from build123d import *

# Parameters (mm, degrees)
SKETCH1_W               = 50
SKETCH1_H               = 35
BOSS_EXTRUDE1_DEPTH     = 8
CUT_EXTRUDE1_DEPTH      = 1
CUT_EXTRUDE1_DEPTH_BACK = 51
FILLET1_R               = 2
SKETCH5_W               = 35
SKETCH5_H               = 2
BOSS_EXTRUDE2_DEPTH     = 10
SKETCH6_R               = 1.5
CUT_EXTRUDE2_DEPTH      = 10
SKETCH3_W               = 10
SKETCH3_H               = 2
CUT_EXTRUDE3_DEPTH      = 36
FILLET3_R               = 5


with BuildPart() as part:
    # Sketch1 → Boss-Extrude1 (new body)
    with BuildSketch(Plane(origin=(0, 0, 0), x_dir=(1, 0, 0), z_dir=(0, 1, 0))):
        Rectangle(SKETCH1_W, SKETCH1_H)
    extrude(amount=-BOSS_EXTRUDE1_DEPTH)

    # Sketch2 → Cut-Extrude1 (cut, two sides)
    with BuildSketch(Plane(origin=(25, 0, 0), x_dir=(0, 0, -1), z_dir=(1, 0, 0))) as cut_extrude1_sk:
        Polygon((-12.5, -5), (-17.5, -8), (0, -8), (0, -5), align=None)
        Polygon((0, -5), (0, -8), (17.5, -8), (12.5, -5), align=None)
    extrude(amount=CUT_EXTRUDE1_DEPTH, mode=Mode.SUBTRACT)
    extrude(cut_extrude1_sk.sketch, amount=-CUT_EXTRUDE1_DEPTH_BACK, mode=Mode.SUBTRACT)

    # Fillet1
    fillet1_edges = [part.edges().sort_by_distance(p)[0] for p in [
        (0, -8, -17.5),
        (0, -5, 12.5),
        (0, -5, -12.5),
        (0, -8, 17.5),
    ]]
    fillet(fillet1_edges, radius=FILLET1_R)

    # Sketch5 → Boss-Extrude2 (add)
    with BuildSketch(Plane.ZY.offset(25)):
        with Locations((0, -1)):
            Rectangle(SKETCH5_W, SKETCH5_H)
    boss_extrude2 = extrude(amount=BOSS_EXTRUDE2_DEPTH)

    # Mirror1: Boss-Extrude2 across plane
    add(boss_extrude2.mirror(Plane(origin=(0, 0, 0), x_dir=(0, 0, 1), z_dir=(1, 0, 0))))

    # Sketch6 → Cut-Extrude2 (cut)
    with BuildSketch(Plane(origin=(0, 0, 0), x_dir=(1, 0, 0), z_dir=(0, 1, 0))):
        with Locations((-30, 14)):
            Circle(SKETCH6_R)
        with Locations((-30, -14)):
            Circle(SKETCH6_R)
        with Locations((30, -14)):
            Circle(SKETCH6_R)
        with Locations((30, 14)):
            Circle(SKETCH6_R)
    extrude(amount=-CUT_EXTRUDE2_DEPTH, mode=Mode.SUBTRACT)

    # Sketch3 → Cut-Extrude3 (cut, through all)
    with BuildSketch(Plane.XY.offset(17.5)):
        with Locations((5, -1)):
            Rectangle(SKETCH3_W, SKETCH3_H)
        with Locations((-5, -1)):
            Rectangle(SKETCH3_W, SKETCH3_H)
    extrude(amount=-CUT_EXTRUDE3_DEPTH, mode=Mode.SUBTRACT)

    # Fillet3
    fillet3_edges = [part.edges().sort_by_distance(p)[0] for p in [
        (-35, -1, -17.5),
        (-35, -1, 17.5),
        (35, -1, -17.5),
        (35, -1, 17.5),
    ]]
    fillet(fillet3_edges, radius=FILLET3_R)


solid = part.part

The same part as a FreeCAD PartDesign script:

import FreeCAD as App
import Part
import Sketcher

V = App.Vector
Q = App.Units.Quantity


def edges_at(feature, points):
    """Names of the edges that pass closest to the given points."""
    edges = feature.Shape.Edges
    near = lambda p: min(range(len(edges)), key=lambda i: edges[i].distToShape(Part.Vertex(*p))[0])
    return sorted({f"Edge{near(p) + 1}" for p in points})

doc = App.newDocument("Part")
body = doc.addObject("PartDesign::Body", "Body")

# Sketch on XZ plane
sketch1 = body.newObject("Sketcher::SketchObject", "Sketch")
sketch1.AttachmentSupport = (doc.getObject("XZ_Plane"), [""])
sketch1.MapMode = "FlatFace"
sketch1.addGeometry(Part.LineSegment(V(-25, -18, 0), V(-25, 18, 0)), False)
sketch1.addGeometry(Part.LineSegment(V(-25, 18, 0), V(25, 18, 0)), False)
sketch1.addGeometry(Part.LineSegment(V(25, 18, 0), V(25, -18, 0)), False)
sketch1.addGeometry(Part.LineSegment(V(25, -18, 0), V(-25, -18, 0)), False)
sketch1.addConstraint(Sketcher.Constraint("Coincident", 0, 2, 1, 1))
sketch1.addConstraint(Sketcher.Constraint("Coincident", 1, 2, 2, 1))
sketch1.addConstraint(Sketcher.Constraint("Coincident", 2, 2, 3, 1))
sketch1.addConstraint(Sketcher.Constraint("Coincident", 3, 2, 0, 1))
sketch1.addConstraint(Sketcher.Constraint("Vertical", 0))
sketch1.addConstraint(Sketcher.Constraint("Horizontal", 1))
sketch1.addConstraint(Sketcher.Constraint("Vertical", 2))
sketch1.addConstraint(Sketcher.Constraint("Horizontal", 3))
sketch1.addConstraint(Sketcher.Constraint("Symmetric", 0, 2, 2, 2, -1, 1))
sketch1.addConstraint(Sketcher.Constraint("DistanceX", 1, 1, 1, 2, Q("50 mm")))
sketch1.addConstraint(Sketcher.Constraint("DistanceY", 0, 1, 0, 2, Q("35 mm")))
pad1 = body.newObject("PartDesign::Pad", "Pad")
pad1.Profile = sketch1
pad1.Length = 8

# Sketch on YZ plane
sketch2 = body.newObject("Sketcher::SketchObject", "Sketch001")
sketch2.AttachmentSupport = (doc.getObject("YZ_Plane"), [""])
sketch2.MapMode = "FlatFace"
sketch2.AttachmentOffset = App.Placement(V(0, 0, 25), App.Rotation())
sketch2.addGeometry(Part.LineSegment(V(-5, 12, 0), V(-8, 18, 0)), False)
sketch2.addGeometry(Part.LineSegment(V(-8, 18, 0), V(-8, -18, 0)), False)
sketch2.addGeometry(Part.LineSegment(V(-8, -18, 0), V(-5, -12, 0)), False)
sketch2.addGeometry(Part.LineSegment(V(-5, -12, 0), V(-5, 12, 0)), False)
sketch2.addConstraint(Sketcher.Constraint("Coincident", 0, 2, 1, 1))
sketch2.addConstraint(Sketcher.Constraint("Coincident", 1, 2, 2, 1))
sketch2.addConstraint(Sketcher.Constraint("Coincident", 2, 2, 3, 1))
sketch2.addConstraint(Sketcher.Constraint("Coincident", 3, 2, 0, 1))
sketch2.addConstraint(Sketcher.Constraint("Vertical", 1))
sketch2.addConstraint(Sketcher.Constraint("Vertical", 3))
sketch2.addConstraint(Sketcher.Constraint("Equal", 0, 2))
sketch2.addConstraint(Sketcher.Constraint("DistanceY", 1, 2, 1, 1, Q("35 mm")))
sketch2.addConstraint(Sketcher.Constraint("DistanceY", 3, 1, 3, 2, Q("25 mm")))
sketch2.addConstraint(Sketcher.Constraint("DistanceX", 0, 2, -1, 1, Q("8 mm")))
sketch2.addConstraint(Sketcher.Constraint("DistanceX", 2, 2, -1, 1, Q("5 mm")))
sketch2.addConstraint(Sketcher.Constraint("DistanceY", -1, 1, 0, 2, Q("17.5 mm")))
pocket1 = body.newObject("PartDesign::Pocket", "Pocket")
pocket1.Profile = sketch2
pocket1.Type = "ThroughAll"
pocket1.Midplane = True
doc.recompute()

fillet = body.newObject("PartDesign::Fillet", "Fillet")
fillet.Base = (pocket1, edges_at(pocket1, [
    (0, -8, -17.5),
    (0, -5, 12.5),
    (0, -5, -12.5),
    (0, -8, 17.5),
]))
fillet.Radius = 2

# Sketch on YZ plane
sketch3 = body.newObject("Sketcher::SketchObject", "Sketch002")
sketch3.AttachmentSupport = (doc.getObject("YZ_Plane"), [""])
sketch3.MapMode = "FlatFace"
sketch3.AttachmentOffset = App.Placement(V(0, 0, -25), App.Rotation())
sketch3.addGeometry(Part.LineSegment(V(0, -17.5, 0), V(-2, -17.5, 0)), False)
sketch3.addGeometry(Part.LineSegment(V(-2, -17.5, 0), V(-2, 17.5, 0)), False)
sketch3.addGeometry(Part.LineSegment(V(-2, 17.5, 0), V(0, 17.5, 0)), False)
sketch3.addGeometry(Part.LineSegment(V(0, 17.5, 0), V(0, -17.5, 0)), False)
sketch3.addConstraint(Sketcher.Constraint("Coincident", 0, 2, 1, 1))
sketch3.addConstraint(Sketcher.Constraint("Coincident", 1, 2, 2, 1))
sketch3.addConstraint(Sketcher.Constraint("Coincident", 2, 2, 3, 1))
sketch3.addConstraint(Sketcher.Constraint("Coincident", 3, 2, 0, 1))
sketch3.addConstraint(Sketcher.Constraint("Horizontal", 0))
sketch3.addConstraint(Sketcher.Constraint("Vertical", 1))
sketch3.addConstraint(Sketcher.Constraint("Horizontal", 2))
sketch3.addConstraint(Sketcher.Constraint("Vertical", 3))
sketch3.addConstraint(Sketcher.Constraint("Symmetric", 2, 2, 3, 2, -1, 1))
sketch3.addConstraint(Sketcher.Constraint("DistanceX", 0, 2, 0, 1, Q("2 mm")))
sketch3.addConstraint(Sketcher.Constraint("DistanceY", 1, 1, 1, 2, Q("35 mm")))
pad2 = body.newObject("PartDesign::Pad", "Pad001")
pad2.Profile = sketch3
pad2.Length = 10
pad2.Reversed = True
doc.recompute()

mirrored = body.newObject("PartDesign::Mirrored", "Mirrored")
mirrored.Originals = [pad2]
mirrored.MirrorPlane = (doc.getObject("YZ_Plane"), [""])
body.Tip = mirrored

# Sketch on XZ plane
sketch4 = body.newObject("Sketcher::SketchObject", "Sketch003")
sketch4.AttachmentSupport = (doc.getObject("XZ_Plane"), [""])
sketch4.MapMode = "FlatFace"
sketch4.addGeometry(Part.Circle(V(-30, -14, 0), V(0, 0, 1), 1.5), False)
sketch4.addGeometry(Part.Circle(V(-30, 14, 0), V(0, 0, 1), 1.5), False)
sketch4.addGeometry(Part.Circle(V(30, 14, 0), V(0, 0, 1), 1.5), False)
sketch4.addGeometry(Part.Circle(V(30, -14, 0), V(0, 0, 1), 1.5), False)
sketch4.addConstraint(Sketcher.Constraint("Equal", 0, 1))
sketch4.addConstraint(Sketcher.Constraint("Equal", 1, 2))
sketch4.addConstraint(Sketcher.Constraint("Equal", 2, 3))
sketch4.addConstraint(Sketcher.Constraint("Symmetric", 0, 3, 2, 3, -1, 1))
sketch4.addConstraint(Sketcher.Constraint("Symmetric", 1, 3, 3, 3, -1, 1))
sketch4.addConstraint(Sketcher.Constraint("Symmetric", 1, 3, 2, 3, -2))
sketch4.addConstraint(Sketcher.Constraint("Diameter", 0, Q("3 mm")))
sketch4.addConstraint(Sketcher.Constraint("DistanceX", 0, 3, -1, 1, Q("30 mm")))
sketch4.addConstraint(Sketcher.Constraint("DistanceY", 0, 3, -1, 1, Q("14 mm")))
pocket2 = body.newObject("PartDesign::Pocket", "Pocket001")
pocket2.Profile = sketch4
pocket2.Length = 10
pocket2.Reversed = True

# Sketch on XY plane
sketch5 = body.newObject("Sketcher::SketchObject", "Sketch004")
sketch5.AttachmentSupport = (doc.getObject("XY_Plane"), [""])
sketch5.MapMode = "FlatFace"
sketch5.AttachmentOffset = App.Placement(V(0, 0, 17.5), App.Rotation())
sketch5.addGeometry(Part.LineSegment(V(10, -2, 0), V(10, 0, 0)), False)
sketch5.addGeometry(Part.LineSegment(V(10, 0, 0), V(-10, 0, 0)), False)
sketch5.addGeometry(Part.LineSegment(V(-10, 0, 0), V(-10, -2, 0)), False)
sketch5.addGeometry(Part.LineSegment(V(-10, -2, 0), V(10, -2, 0)), False)
sketch5.addConstraint(Sketcher.Constraint("Coincident", 0, 2, 1, 1))
sketch5.addConstraint(Sketcher.Constraint("Coincident", 1, 2, 2, 1))
sketch5.addConstraint(Sketcher.Constraint("Coincident", 2, 2, 3, 1))
sketch5.addConstraint(Sketcher.Constraint("Coincident", 3, 2, 0, 1))
sketch5.addConstraint(Sketcher.Constraint("Vertical", 0))
sketch5.addConstraint(Sketcher.Constraint("Horizontal", 1))
sketch5.addConstraint(Sketcher.Constraint("Vertical", 2))
sketch5.addConstraint(Sketcher.Constraint("Horizontal", 3))
sketch5.addConstraint(Sketcher.Constraint("Symmetric", 0, 2, 1, 2, -1, 1))
sketch5.addConstraint(Sketcher.Constraint("DistanceX", 1, 2, 1, 1, Q("20 mm")))
sketch5.addConstraint(Sketcher.Constraint("DistanceY", 0, 1, 0, 2, Q("2 mm")))
pocket3 = body.newObject("PartDesign::Pocket", "Pocket002")
pocket3.Profile = sketch5
pocket3.Type = "ThroughAll"
doc.recompute()

fillet2 = body.newObject("PartDesign::Fillet", "Fillet001")
fillet2.Base = (pocket3, edges_at(pocket3, [
    (-35, -1, -17.5),
    (-35, -1, 17.5),
    (35, -1, -17.5),
    (35, -1, 17.5),
]))
fillet2.Radius = 5

doc.recompute()
